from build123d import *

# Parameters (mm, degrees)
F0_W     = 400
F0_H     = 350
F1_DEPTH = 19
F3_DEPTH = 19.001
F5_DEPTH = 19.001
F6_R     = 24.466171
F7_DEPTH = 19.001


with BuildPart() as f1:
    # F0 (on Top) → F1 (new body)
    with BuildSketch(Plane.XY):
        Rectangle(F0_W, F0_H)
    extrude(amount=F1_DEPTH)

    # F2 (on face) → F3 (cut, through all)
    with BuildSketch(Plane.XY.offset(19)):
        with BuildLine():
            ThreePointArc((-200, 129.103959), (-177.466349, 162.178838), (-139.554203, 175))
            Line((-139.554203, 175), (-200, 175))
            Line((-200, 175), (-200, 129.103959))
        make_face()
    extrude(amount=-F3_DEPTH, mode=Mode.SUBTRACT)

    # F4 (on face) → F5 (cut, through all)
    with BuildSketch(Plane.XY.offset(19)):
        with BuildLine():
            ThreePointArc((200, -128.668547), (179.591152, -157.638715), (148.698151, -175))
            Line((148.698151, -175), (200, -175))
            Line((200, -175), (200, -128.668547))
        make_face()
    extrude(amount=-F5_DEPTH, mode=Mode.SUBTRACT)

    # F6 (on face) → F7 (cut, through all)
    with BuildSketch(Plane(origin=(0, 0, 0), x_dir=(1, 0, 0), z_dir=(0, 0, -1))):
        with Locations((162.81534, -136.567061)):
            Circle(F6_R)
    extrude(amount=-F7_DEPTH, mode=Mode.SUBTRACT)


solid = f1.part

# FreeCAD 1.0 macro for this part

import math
import FreeCAD as App
import Part
import Sketcher
Q = App.Units.Quantity


def add_polygon(sketch, points):
    """Adds a closed chain of lines whose ends are joined by coincident constraints."""
    first, n = sketch.GeometryCount, len(points)
    for a, b in zip(points, points[1:] + points[:1]):
        sketch.addGeometry(Part.LineSegment(App.Vector(*a, 0), App.Vector(*b, 0)), False)
    for i in range(n):
        sketch.addConstraint(Sketcher.Constraint("Coincident", first + i, 2, first + (i + 1) % n, 1))

doc = App.newDocument("Part")
body = doc.addObject("PartDesign::Body", "Body")

sketch1 = body.newObject("Sketcher::SketchObject", "Sketch")
sketch1.AttachmentSupport = (doc.getObject("XY_Plane"), [""])
sketch1.MapMode = "FlatFace"
add_polygon(sketch1, [(-200, 175), (-200, -175), (200, -175), (200, 175)])
sketch1.addConstraint(Sketcher.Constraint("Vertical", 0))
sketch1.addConstraint(Sketcher.Constraint("Horizontal", 1))
sketch1.addConstraint(Sketcher.Constraint("Vertical", 2))
sketch1.addConstraint(Sketcher.Constraint("Horizontal", 3))
sketch1.addConstraint(Sketcher.Constraint("Symmetric", 0, 2, 2, 2, -1, 1))
sketch1.addConstraint(Sketcher.Constraint("DistanceX", 1, 1, 1, 2, Q("400 mm")))
sketch1.addConstraint(Sketcher.Constraint("DistanceY", 0, 2, 0, 1, Q("350 mm")))
pad1 = body.newObject("PartDesign::Pad", "Pad")
pad1.Profile = sketch1
pad1.Length = 19

sketch2 = body.newObject("Sketcher::SketchObject", "Sketch001")
sketch2.AttachmentSupport = (doc.getObject("XY_Plane"), [""])
sketch2.MapMode = "FlatFace"
sketch2.AttachmentOffset = App.Placement(App.Vector(0, 0, 19), App.Rotation())
sketch2.addGeometry(Part.ArcOfCircle(Part.Circle(App.Vector(-139, 112, 0), App.Vector(0, 0, 1), 63), math.radians(90), math.radians(164)), False)
sketch2.addGeometry(Part.LineSegment(App.Vector(-140, 175, 0), App.Vector(-200, 175, 0)), False)
sketch2.addGeometry(Part.LineSegment(App.Vector(-200, 175, 0), App.Vector(-200, 129, 0)), False)
sketch2.addConstraint(Sketcher.Constraint("Coincident", 0, 1, 1, 1))
sketch2.addConstraint(Sketcher.Constraint("Coincident", 1, 2, 2, 1))
sketch2.addConstraint(Sketcher.Constraint("Coincident", 2, 2, 0, 2))
sketch2.addConstraint(Sketcher.Constraint("Horizontal", 1))
sketch2.addConstraint(Sketcher.Constraint("Vertical", 2))
sketch2.addConstraint(Sketcher.Constraint("DistanceY", -1, 1, 0, 1, Q("175 mm")))
sketch2.addConstraint(Sketcher.Constraint("DistanceX", 1, 2, -1, 1, Q("200 mm")))
sketch2.addConstraint(Sketcher.Constraint("Radius", 0, Q("62.983897 mm")))
sketch2.addConstraint(Sketcher.Constraint("DistanceY", 2, 2, 2, 1, Q("45.896041 mm")))
sketch2.addConstraint(Sketcher.Constraint("DistanceX", 1, 2, 1, 1, Q("60.445797 mm")))
pocket1 = body.newObject("PartDesign::Pocket", "Pocket")
pocket1.Profile = sketch2
pocket1.Type = "ThroughAll"

sketch3 = body.newObject("Sketcher::SketchObject", "Sketch002")
sketch3.AttachmentSupport = (doc.getObject("XY_Plane"), [""])
sketch3.MapMode = "FlatFace"
sketch3.AttachmentOffset = App.Placement(App.Vector(0, 0, 19), App.Rotation())
sketch3.addGeometry(Part.ArcOfCircle(Part.Circle(App.Vector(126, -98, 0), App.Vector(0, 0, 1), 80), math.radians(-73), math.radians(-22)), False)
sketch3.addGeometry(Part.LineSegment(App.Vector(149, -175, 0), App.Vector(200, -175, 0)), False)
sketch3.addGeometry(Part.LineSegment(App.Vector(200, -175, 0), App.Vector(200, -129, 0)), False)
sketch3.addConstraint(Sketcher.Constraint("Coincident", 0, 1, 1, 1))
sketch3.addConstraint(Sketcher.Constraint("Coincident", 1, 2, 2, 1))
sketch3.addConstraint(Sketcher.Constraint("Coincident", 2, 2, 0, 2))
sketch3.addConstraint(Sketcher.Constraint("Horizontal", 1))
sketch3.addConstraint(Sketcher.Constraint("Vertical", 2))
sketch3.addConstraint(Sketcher.Constraint("DistanceY", 0, 1, -1, 1, Q("175 mm")))
sketch3.addConstraint(Sketcher.Constraint("DistanceX", -1, 1, 1, 2, Q("200 mm")))
sketch3.addConstraint(Sketcher.Constraint("Radius", 0, Q("80.281441 mm")))
sketch3.addConstraint(Sketcher.Constraint("DistanceX", 1, 1, 1, 2, Q("51.301849 mm")))
sketch3.addConstraint(Sketcher.Constraint("DistanceX", 0, 3, 0, 1, Q("22.914899 mm")))
pocket2 = body.newObject("PartDesign::Pocket", "Pocket001")
pocket2.Profile = sketch3
pocket2.Type = "ThroughAll"

sketch4 = body.newObject("Sketcher::SketchObject", "Sketch003")
sketch4.AttachmentSupport = (doc.getObject("XY_Plane"), [""])
sketch4.MapMode = "FlatFace"
sketch4.addGeometry(Part.Circle(App.Vector(163, 137, 0), App.Vector(0, 0, 1), 24), False)
sketch4.addConstraint(Sketcher.Constraint("Diameter", 0, Q("48.932342 mm")))
sketch4.addConstraint(Sketcher.Constraint("DistanceX", -1, 1, 0, 3, Q("162.81534 mm")))
sketch4.addConstraint(Sketcher.Constraint("DistanceY", -1, 1, 0, 3, Q("136.567061 mm")))
pocket3 = body.newObject("PartDesign::Pocket", "Pocket002")
pocket3.Profile = sketch4
pocket3.Type = "ThroughAll"
pocket3.Reversed = True

doc.recompute()
